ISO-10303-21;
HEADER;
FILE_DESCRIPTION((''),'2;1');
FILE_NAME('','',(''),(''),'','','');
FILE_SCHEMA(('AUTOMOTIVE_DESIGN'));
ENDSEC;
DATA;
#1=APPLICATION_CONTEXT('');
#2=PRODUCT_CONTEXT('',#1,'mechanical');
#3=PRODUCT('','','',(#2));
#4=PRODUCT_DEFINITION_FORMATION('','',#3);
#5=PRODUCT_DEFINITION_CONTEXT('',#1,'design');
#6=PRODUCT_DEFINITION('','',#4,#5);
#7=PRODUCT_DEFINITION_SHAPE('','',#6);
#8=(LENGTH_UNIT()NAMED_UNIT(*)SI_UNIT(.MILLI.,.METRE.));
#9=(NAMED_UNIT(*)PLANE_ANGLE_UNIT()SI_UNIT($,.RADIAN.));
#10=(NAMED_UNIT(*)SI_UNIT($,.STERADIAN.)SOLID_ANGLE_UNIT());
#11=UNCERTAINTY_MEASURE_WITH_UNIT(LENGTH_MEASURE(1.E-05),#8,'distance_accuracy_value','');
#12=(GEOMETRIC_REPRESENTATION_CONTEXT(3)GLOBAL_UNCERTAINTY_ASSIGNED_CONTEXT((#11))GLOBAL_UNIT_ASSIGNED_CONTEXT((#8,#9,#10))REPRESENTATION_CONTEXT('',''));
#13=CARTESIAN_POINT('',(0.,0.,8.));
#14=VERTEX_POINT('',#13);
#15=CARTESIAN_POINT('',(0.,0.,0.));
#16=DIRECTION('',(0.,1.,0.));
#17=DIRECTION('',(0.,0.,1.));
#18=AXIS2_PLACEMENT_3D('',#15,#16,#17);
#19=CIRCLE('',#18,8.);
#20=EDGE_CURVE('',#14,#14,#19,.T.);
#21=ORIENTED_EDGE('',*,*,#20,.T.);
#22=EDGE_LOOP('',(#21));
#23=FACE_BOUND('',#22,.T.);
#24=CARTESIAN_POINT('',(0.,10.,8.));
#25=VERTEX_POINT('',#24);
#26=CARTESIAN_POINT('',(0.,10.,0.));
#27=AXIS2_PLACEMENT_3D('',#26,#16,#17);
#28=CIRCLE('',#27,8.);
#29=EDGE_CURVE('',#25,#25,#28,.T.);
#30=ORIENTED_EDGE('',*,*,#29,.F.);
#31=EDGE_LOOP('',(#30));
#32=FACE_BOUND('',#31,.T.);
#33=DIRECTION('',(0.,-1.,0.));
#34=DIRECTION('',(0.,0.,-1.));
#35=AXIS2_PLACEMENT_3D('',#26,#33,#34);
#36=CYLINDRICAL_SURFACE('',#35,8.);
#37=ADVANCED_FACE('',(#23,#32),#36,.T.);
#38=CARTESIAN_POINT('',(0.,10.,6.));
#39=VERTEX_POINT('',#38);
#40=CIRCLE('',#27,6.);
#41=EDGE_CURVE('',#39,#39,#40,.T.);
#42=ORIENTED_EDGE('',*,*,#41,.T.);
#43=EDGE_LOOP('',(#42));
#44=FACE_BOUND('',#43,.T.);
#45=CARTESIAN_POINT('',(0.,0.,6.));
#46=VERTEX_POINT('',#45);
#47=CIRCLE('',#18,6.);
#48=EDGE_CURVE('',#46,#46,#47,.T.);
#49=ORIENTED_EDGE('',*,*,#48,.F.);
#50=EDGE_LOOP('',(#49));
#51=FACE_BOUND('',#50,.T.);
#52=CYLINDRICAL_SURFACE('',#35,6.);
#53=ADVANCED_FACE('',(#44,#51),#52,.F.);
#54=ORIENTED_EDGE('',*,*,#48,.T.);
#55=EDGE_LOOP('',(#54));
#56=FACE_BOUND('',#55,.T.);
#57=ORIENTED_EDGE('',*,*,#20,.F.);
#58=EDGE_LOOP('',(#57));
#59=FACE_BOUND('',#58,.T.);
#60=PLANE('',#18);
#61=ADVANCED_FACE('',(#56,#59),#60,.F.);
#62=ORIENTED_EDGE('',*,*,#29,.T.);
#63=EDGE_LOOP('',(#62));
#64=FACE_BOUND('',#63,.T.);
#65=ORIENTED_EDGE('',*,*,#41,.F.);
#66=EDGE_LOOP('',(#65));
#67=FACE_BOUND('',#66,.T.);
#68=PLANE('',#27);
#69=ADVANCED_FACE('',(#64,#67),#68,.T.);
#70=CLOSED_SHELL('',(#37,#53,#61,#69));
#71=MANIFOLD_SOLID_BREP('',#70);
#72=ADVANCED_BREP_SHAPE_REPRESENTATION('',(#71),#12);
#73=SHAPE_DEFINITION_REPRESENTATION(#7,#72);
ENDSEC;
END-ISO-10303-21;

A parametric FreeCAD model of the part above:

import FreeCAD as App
import Part
import Sketcher
from FreeCAD import Vector
Q = App.Units.Quantity

doc = App.newDocument("Part")
body = doc.addObject("PartDesign::Body", "Body")

sketch1 = body.newObject("Sketcher::SketchObject", "Sketch")
sketch1.AttachmentSupport = (doc.getObject("XZ_Plane"), [""])
sketch1.MapMode = "FlatFace"
sketch1.addGeometry([
    Part.Circle(Vector(0, 0, 0), Vector(0, 0, 1), 8),
    Part.Circle(Vector(0, 0, 0), Vector(0, 0, 1), 6),
], False)
sketch1.addConstraint([
    Sketcher.Constraint("Coincident", 0, 3, -1, 1),
    Sketcher.Constraint("Coincident", 1, 3, -1, 1),
    Sketcher.Constraint("Diameter", 0, Q("16 mm")),
    Sketcher.Constraint("Diameter", 1, Q("12 mm")),
])
pad1 = body.newObject("PartDesign::Pad", "Pad")
pad1.Profile = sketch1
pad1.Length = 10
pad1.Reversed = True

doc.recompute()
